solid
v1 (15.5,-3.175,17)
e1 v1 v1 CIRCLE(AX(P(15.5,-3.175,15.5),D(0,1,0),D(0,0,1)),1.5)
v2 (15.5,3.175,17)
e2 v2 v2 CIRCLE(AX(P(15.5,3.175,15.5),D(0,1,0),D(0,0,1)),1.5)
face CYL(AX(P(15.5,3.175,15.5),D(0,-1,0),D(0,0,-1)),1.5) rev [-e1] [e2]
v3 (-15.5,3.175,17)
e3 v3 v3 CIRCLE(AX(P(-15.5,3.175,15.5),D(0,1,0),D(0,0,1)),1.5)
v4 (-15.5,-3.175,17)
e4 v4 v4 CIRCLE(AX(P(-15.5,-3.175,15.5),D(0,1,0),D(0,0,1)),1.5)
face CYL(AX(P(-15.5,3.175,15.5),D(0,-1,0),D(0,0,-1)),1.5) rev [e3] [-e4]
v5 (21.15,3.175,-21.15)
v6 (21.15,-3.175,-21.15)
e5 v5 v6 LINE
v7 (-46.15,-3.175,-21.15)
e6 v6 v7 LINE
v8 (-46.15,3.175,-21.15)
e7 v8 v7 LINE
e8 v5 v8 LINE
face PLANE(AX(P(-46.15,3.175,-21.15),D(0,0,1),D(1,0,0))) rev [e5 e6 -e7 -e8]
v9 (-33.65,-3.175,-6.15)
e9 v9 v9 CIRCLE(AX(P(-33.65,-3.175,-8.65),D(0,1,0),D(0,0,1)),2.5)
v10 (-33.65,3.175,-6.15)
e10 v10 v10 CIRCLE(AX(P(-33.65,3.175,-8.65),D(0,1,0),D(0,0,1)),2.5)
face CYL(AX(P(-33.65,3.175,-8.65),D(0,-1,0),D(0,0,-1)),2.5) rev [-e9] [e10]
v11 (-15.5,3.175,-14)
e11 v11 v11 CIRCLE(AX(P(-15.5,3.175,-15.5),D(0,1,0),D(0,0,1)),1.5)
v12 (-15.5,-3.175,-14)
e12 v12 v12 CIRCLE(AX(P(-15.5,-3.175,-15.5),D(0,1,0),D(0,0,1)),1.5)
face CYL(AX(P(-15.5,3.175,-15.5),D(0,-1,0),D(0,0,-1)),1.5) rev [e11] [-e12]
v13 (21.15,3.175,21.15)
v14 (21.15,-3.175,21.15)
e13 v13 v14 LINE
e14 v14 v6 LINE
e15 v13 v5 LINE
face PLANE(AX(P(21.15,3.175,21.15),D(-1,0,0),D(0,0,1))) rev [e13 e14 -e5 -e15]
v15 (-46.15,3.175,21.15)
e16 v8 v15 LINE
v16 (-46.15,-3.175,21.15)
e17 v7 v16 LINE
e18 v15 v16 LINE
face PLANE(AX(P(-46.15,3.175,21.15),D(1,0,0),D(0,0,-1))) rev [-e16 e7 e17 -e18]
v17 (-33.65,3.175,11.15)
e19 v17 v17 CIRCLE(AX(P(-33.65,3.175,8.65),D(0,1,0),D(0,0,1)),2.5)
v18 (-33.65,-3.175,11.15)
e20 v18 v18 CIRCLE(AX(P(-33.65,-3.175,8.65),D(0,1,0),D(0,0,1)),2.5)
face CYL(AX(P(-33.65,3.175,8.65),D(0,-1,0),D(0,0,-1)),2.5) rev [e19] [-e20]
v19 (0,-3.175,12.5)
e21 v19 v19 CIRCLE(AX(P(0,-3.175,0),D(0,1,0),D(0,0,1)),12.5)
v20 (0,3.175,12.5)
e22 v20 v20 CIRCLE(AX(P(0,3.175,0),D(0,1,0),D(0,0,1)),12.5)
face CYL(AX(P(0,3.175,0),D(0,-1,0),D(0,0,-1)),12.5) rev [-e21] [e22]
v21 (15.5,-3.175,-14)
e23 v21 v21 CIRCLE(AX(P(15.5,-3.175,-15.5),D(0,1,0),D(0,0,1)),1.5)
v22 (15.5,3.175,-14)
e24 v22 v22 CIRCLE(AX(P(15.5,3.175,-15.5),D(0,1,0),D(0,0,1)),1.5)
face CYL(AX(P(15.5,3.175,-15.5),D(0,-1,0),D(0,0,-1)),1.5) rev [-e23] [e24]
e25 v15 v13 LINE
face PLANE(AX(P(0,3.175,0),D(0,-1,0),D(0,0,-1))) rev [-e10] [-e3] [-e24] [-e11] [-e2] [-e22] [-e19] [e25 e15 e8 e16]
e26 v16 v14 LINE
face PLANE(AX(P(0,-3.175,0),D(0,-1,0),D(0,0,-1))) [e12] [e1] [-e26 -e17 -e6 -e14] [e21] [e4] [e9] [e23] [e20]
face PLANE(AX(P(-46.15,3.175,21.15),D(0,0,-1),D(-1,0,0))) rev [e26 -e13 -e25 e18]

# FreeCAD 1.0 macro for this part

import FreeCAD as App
import Part
import Sketcher
from FreeCAD import Vector

doc = App.newDocument("Part")
body = doc.addObject("PartDesign::Body", "Body")

sketch1 = body.newObject("Sketcher::SketchObject", "Sketch")
sketch1.AttachmentSupport = (doc.getObject("XZ_Plane"), [""])
sketch1.MapMode = "FlatFace"
sketch1.addGeometry(Part.LineSegment(Vector(-46.1, -21.1, 0), Vector(-46.1, 21.1, 0)), False)
sketch1.addGeometry(Part.LineSegment(Vector(-46.1, 21.1, 0), Vector(21.1, 21.1, 0)), False)
sketch1.addGeometry(Part.LineSegment(Vector(21.1, 21.1, 0), Vector(21.1, -21.1, 0)), False)
sketch1.addGeometry(Part.LineSegment(Vector(21.1, -21.1, 0), Vector(-46.1, -21.1, 0)), False)
sketch1.addGeometry(Part.Circle(Vector(-33.6, 8.7, 0), Vector(0, 0, 1), 2.5), False)
sketch1.addGeometry(Part.Circle(Vector(-15.5, 15.5, 0), Vector(0, 0, 1), 1.5), False)
sketch1.addGeometry(Part.Circle(Vector(15.5, 15.5, 0), Vector(0, 0, 1), 1.5), False)
sketch1.addGeometry(Part.Circle(Vector(-33.6, -8.7, 0), Vector(0, 0, 1), 2.5), False)
sketch1.addGeometry(Part.Circle(Vector(-15.5, -15.5, 0), Vector(0, 0, 1), 1.5), False)
sketch1.addGeometry(Part.Circle(Vector(0, 0, 0), Vector(0, 0, 1), 12.5), False)
sketch1.addGeometry(Part.Circle(Vector(15.5, -15.5, 0), Vector(0, 0, 1), 1.5), False)
sketch1.addConstraint(Sketcher.Constraint("Coincident", 0, 2, 1, 1))
sketch1.addConstraint(Sketcher.Constraint("Coincident", 1, 2, 2, 1))
sketch1.addConstraint(Sketcher.Constraint("Coincident", 2, 2, 3, 1))
sketch1.addConstraint(Sketcher.Constraint("Coincident", 3, 2, 0, 1))
sketch1.addConstraint(Sketcher.Constraint("Vertical", 0))
sketch1.addConstraint(Sketcher.Constraint("Horizontal", 1))
sketch1.addConstraint(Sketcher.Constraint("Vertical", 2))
sketch1.addConstraint(Sketcher.Constraint("Horizontal", 3))
sketch1.addConstraint(Sketcher.Constraint("Coincident", 9, 3, -1, 1))
sketch1.addConstraint(Sketcher.Constraint("Equal", 5, 6))
sketch1.addConstraint(Sketcher.Constraint("Equal", 4, 7))
sketch1.addConstraint(Sketcher.Constraint("Equal", 6, 8))
sketch1.addConstraint(Sketcher.Constraint("Equal", 8, 10))
sketch1.addConstraint(Sketcher.Constraint("Symmetric", 6, 3, 8, 3, -1, 1))
sketch1.addConstraint(Sketcher.Constraint("Symmetric", 5, 3, 10, 3, -1, 1))
sketch1.addConstraint(Sketcher.Constraint("Symmetric", 5, 3, 6, 3, -2))
sketch1.addConstraint(Sketcher.Constraint("Symmetric", 4, 3, 7, 3, -1))
sketch1.addConstraint(Sketcher.Constraint("Diameter", 4, 5.0))
sketch1.addConstraint(Sketcher.Constraint("Diameter", 5, 3.0))
sketch1.addConstraint(Sketcher.Constraint("Diameter", 9, 25.0))
sketch1.addConstraint(Sketcher.Constraint("DistanceX", 1, 1, 1, 2, 67.3))
sketch1.addConstraint(Sketcher.Constraint("DistanceY", 0, 1, 0, 2, 42.3))
sketch1.addConstraint(Sketcher.Constraint("DistanceX", 5, 3, 6, 3, 31.0))
sketch1.addConstraint(Sketcher.Constraint("DistanceY", 8, 3, 5, 3, 31.0))
sketch1.addConstraint(Sketcher.Constraint("DistanceY", 7, 3, 4, 3, 17.3))
sketch1.addConstraint(Sketcher.Constraint("DistanceX", 0, 2, 4, 3, 12.5))
sketch1.addConstraint(Sketcher.Constraint("DistanceY", 4, 3, 0, 2, 12.5))
sketch1.addConstraint(Sketcher.Constraint("DistanceX", 4, 3, -1, 1, 33.65))
pad1 = body.newObject("PartDesign::Pad", "Pad")
pad1.Profile = sketch1
pad1.Length = 6.35
pad1.Midplane = True

doc.recompute()
